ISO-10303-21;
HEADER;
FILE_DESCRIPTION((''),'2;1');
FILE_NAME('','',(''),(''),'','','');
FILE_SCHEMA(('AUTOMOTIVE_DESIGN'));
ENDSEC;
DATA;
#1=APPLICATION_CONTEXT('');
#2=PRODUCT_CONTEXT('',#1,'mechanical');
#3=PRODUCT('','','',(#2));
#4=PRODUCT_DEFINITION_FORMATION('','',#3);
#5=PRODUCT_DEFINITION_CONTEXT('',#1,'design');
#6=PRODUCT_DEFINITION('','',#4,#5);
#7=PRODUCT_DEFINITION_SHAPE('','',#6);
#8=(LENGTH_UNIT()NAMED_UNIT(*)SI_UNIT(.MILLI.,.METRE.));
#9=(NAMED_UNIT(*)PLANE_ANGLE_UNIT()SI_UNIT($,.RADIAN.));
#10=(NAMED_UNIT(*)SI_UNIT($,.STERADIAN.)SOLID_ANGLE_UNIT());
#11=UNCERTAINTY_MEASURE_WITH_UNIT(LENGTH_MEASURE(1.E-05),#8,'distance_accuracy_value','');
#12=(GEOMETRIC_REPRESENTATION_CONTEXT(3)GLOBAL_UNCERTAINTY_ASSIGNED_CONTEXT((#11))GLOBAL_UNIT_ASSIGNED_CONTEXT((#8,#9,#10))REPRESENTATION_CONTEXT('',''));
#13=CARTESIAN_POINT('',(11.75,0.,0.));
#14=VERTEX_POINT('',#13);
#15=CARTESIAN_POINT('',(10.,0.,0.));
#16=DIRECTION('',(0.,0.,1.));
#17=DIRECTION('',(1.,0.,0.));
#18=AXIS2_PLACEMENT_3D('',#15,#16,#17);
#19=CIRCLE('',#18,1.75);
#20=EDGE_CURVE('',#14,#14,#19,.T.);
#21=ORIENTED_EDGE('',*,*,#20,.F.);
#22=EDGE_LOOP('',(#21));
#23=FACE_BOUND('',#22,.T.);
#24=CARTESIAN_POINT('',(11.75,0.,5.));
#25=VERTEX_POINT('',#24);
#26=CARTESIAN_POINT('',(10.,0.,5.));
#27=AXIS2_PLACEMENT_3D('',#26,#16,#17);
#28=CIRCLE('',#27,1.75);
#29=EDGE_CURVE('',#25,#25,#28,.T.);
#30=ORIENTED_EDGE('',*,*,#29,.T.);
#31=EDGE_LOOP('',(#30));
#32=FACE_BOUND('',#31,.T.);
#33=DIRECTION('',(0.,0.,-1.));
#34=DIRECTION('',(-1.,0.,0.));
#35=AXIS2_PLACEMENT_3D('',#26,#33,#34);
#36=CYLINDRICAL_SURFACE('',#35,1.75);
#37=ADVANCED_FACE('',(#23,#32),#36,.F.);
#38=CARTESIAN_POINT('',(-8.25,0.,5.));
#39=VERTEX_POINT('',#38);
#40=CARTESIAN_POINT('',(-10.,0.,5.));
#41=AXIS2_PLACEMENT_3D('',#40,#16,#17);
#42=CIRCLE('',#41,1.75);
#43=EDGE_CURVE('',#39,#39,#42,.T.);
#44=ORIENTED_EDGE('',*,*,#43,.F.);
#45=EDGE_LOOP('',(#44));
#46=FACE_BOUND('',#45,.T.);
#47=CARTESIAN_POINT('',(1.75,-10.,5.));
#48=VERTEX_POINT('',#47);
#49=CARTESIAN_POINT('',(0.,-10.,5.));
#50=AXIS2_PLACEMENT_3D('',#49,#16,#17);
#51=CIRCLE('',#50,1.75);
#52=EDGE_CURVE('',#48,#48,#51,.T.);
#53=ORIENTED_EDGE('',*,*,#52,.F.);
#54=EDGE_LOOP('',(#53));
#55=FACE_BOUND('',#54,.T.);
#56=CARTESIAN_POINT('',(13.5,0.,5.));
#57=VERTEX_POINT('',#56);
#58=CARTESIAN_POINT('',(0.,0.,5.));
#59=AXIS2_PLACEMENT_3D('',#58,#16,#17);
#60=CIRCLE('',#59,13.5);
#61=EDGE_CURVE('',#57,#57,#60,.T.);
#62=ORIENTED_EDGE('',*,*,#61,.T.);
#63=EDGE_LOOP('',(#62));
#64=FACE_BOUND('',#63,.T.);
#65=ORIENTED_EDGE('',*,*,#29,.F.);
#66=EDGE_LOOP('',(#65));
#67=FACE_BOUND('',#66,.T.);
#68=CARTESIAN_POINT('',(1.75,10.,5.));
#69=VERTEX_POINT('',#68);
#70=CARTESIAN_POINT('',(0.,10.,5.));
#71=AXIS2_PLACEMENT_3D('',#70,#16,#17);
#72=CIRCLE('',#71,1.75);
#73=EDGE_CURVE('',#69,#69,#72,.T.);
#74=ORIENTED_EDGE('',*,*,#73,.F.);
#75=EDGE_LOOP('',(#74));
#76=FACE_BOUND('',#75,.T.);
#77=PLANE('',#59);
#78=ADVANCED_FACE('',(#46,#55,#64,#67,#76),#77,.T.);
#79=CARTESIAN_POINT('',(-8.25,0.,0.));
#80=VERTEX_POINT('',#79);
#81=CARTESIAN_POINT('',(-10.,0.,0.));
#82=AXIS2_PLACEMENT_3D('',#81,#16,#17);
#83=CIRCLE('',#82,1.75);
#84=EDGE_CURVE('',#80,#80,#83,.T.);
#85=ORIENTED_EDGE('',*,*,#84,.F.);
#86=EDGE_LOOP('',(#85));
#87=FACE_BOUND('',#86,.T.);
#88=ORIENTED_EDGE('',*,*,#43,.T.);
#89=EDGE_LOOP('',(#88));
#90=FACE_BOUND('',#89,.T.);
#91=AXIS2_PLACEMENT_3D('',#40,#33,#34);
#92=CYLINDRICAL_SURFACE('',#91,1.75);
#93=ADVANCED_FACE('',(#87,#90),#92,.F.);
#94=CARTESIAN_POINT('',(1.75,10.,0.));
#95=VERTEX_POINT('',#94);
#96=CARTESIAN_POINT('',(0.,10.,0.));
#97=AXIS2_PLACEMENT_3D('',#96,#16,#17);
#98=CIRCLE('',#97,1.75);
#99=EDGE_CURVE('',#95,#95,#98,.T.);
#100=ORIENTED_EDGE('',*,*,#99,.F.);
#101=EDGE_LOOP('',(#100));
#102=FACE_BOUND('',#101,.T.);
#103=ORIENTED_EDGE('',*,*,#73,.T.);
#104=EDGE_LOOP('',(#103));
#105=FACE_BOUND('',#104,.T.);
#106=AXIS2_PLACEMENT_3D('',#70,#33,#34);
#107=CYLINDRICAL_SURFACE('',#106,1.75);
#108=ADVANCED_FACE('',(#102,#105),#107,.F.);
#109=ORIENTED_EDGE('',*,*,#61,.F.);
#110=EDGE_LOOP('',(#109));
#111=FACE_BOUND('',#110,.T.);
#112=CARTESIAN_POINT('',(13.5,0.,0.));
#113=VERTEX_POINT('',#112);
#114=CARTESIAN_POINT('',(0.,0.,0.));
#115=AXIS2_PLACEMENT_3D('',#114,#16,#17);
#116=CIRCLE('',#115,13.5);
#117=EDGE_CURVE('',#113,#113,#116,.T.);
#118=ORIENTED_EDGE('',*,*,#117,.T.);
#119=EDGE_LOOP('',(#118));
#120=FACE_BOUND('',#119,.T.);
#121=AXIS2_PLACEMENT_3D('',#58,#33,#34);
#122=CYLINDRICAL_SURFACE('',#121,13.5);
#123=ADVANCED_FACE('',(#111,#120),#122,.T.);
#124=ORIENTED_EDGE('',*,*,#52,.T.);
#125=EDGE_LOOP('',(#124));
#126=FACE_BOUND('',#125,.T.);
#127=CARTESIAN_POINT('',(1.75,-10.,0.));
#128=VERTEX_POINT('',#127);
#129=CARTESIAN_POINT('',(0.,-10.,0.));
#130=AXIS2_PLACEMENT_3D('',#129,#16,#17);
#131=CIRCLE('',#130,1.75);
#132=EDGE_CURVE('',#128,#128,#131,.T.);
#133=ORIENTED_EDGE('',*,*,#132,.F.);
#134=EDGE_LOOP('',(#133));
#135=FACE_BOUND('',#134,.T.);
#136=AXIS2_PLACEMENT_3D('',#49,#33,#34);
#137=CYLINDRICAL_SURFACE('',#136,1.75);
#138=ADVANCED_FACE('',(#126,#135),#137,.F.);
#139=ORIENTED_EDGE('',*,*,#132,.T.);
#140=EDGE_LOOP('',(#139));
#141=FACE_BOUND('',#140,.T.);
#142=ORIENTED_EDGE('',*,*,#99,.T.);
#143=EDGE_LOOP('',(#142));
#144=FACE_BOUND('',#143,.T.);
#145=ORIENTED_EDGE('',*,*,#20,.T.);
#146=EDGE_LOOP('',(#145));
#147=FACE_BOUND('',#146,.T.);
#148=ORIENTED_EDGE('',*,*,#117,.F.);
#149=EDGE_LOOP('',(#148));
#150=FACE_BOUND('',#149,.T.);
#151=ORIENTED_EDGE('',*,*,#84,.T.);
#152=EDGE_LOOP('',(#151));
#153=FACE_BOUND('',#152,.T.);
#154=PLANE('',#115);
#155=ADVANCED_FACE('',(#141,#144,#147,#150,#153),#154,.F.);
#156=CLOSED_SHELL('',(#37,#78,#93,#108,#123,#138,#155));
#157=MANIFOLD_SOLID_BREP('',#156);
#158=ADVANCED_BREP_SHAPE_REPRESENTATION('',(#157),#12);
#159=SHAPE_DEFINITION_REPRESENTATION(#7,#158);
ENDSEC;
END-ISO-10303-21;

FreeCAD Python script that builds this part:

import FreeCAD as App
import Part
import Sketcher
from FreeCAD import Vector

doc = App.newDocument("Part")
params = doc.addObject("Spreadsheet::Sheet", "Params")
for row, (alias, value) in enumerate([
    ("sketch1_diameter", "27 mm"),
    ("sketch1_diameter2", "3.5 mm"),
    ("pad1_length", "5 mm"),
], start=1):
    params.set(f"A{row}", alias)
    params.set(f"B{row}", "=" + value)
    params.setAlias(f"B{row}", alias)

body = doc.addObject("PartDesign::Body", "Body")

sketch1 = body.newObject("Sketcher::SketchObject", "Sketch")
sketch1.AttachmentSupport = (doc.getObject("XY_Plane"), [""])
sketch1.MapMode = "FlatFace"
sketch1.addGeometry([
    Part.Circle(Vector(0, 0, 0), Vector(0, 0, 1), 13.5),
    Part.Circle(Vector(0, -10, 0), Vector(0, 0, 1), 1.8),
    Part.Circle(Vector(-10, 0, 0), Vector(0, 0, 1), 1.8),
    Part.Circle(Vector(10, 0, 0), Vector(0, 0, 1), 1.8),
    Part.Circle(Vector(0, 10, 0), Vector(0, 0, 1), 1.8),
], False)
sketch1.addConstraint([
    Sketcher.Constraint("Coincident", 0, 3, -1, 1),
    Sketcher.Constraint("Equal", 1, 2),
    Sketcher.Constraint("Equal", 2, 3),
    Sketcher.Constraint("Equal", 3, 4),
    Sketcher.Constraint("Symmetric", 2, 3, 3, 3, -1, 1),
    Sketcher.Constraint("Symmetric", 1, 3, 4, 3, -1, 1),
    Sketcher.Constraint("PointOnObject", 1, 3, -2),
    Sketcher.Constraint("PointOnObject", 2, 3, -1),
    Sketcher.Constraint("Diameter", 0, 27.0),
    Sketcher.Constraint("Diameter", 1, 3.5),
    Sketcher.Constraint("DistanceY", 1, 3, -1, 1, 10.0),
    Sketcher.Constraint("DistanceX", 2, 3, -1, 1, 10.0),
])
sketch1.setExpression("Constraints[8]", "Params.sketch1_diameter")
sketch1.setExpression("Constraints[9]", "Params.sketch1_diameter2")
pad1 = body.newObject("PartDesign::Pad", "Pad")
pad1.Profile = sketch1
pad1.setExpression("Length", "Params.pad1_length")

doc.recompute()
